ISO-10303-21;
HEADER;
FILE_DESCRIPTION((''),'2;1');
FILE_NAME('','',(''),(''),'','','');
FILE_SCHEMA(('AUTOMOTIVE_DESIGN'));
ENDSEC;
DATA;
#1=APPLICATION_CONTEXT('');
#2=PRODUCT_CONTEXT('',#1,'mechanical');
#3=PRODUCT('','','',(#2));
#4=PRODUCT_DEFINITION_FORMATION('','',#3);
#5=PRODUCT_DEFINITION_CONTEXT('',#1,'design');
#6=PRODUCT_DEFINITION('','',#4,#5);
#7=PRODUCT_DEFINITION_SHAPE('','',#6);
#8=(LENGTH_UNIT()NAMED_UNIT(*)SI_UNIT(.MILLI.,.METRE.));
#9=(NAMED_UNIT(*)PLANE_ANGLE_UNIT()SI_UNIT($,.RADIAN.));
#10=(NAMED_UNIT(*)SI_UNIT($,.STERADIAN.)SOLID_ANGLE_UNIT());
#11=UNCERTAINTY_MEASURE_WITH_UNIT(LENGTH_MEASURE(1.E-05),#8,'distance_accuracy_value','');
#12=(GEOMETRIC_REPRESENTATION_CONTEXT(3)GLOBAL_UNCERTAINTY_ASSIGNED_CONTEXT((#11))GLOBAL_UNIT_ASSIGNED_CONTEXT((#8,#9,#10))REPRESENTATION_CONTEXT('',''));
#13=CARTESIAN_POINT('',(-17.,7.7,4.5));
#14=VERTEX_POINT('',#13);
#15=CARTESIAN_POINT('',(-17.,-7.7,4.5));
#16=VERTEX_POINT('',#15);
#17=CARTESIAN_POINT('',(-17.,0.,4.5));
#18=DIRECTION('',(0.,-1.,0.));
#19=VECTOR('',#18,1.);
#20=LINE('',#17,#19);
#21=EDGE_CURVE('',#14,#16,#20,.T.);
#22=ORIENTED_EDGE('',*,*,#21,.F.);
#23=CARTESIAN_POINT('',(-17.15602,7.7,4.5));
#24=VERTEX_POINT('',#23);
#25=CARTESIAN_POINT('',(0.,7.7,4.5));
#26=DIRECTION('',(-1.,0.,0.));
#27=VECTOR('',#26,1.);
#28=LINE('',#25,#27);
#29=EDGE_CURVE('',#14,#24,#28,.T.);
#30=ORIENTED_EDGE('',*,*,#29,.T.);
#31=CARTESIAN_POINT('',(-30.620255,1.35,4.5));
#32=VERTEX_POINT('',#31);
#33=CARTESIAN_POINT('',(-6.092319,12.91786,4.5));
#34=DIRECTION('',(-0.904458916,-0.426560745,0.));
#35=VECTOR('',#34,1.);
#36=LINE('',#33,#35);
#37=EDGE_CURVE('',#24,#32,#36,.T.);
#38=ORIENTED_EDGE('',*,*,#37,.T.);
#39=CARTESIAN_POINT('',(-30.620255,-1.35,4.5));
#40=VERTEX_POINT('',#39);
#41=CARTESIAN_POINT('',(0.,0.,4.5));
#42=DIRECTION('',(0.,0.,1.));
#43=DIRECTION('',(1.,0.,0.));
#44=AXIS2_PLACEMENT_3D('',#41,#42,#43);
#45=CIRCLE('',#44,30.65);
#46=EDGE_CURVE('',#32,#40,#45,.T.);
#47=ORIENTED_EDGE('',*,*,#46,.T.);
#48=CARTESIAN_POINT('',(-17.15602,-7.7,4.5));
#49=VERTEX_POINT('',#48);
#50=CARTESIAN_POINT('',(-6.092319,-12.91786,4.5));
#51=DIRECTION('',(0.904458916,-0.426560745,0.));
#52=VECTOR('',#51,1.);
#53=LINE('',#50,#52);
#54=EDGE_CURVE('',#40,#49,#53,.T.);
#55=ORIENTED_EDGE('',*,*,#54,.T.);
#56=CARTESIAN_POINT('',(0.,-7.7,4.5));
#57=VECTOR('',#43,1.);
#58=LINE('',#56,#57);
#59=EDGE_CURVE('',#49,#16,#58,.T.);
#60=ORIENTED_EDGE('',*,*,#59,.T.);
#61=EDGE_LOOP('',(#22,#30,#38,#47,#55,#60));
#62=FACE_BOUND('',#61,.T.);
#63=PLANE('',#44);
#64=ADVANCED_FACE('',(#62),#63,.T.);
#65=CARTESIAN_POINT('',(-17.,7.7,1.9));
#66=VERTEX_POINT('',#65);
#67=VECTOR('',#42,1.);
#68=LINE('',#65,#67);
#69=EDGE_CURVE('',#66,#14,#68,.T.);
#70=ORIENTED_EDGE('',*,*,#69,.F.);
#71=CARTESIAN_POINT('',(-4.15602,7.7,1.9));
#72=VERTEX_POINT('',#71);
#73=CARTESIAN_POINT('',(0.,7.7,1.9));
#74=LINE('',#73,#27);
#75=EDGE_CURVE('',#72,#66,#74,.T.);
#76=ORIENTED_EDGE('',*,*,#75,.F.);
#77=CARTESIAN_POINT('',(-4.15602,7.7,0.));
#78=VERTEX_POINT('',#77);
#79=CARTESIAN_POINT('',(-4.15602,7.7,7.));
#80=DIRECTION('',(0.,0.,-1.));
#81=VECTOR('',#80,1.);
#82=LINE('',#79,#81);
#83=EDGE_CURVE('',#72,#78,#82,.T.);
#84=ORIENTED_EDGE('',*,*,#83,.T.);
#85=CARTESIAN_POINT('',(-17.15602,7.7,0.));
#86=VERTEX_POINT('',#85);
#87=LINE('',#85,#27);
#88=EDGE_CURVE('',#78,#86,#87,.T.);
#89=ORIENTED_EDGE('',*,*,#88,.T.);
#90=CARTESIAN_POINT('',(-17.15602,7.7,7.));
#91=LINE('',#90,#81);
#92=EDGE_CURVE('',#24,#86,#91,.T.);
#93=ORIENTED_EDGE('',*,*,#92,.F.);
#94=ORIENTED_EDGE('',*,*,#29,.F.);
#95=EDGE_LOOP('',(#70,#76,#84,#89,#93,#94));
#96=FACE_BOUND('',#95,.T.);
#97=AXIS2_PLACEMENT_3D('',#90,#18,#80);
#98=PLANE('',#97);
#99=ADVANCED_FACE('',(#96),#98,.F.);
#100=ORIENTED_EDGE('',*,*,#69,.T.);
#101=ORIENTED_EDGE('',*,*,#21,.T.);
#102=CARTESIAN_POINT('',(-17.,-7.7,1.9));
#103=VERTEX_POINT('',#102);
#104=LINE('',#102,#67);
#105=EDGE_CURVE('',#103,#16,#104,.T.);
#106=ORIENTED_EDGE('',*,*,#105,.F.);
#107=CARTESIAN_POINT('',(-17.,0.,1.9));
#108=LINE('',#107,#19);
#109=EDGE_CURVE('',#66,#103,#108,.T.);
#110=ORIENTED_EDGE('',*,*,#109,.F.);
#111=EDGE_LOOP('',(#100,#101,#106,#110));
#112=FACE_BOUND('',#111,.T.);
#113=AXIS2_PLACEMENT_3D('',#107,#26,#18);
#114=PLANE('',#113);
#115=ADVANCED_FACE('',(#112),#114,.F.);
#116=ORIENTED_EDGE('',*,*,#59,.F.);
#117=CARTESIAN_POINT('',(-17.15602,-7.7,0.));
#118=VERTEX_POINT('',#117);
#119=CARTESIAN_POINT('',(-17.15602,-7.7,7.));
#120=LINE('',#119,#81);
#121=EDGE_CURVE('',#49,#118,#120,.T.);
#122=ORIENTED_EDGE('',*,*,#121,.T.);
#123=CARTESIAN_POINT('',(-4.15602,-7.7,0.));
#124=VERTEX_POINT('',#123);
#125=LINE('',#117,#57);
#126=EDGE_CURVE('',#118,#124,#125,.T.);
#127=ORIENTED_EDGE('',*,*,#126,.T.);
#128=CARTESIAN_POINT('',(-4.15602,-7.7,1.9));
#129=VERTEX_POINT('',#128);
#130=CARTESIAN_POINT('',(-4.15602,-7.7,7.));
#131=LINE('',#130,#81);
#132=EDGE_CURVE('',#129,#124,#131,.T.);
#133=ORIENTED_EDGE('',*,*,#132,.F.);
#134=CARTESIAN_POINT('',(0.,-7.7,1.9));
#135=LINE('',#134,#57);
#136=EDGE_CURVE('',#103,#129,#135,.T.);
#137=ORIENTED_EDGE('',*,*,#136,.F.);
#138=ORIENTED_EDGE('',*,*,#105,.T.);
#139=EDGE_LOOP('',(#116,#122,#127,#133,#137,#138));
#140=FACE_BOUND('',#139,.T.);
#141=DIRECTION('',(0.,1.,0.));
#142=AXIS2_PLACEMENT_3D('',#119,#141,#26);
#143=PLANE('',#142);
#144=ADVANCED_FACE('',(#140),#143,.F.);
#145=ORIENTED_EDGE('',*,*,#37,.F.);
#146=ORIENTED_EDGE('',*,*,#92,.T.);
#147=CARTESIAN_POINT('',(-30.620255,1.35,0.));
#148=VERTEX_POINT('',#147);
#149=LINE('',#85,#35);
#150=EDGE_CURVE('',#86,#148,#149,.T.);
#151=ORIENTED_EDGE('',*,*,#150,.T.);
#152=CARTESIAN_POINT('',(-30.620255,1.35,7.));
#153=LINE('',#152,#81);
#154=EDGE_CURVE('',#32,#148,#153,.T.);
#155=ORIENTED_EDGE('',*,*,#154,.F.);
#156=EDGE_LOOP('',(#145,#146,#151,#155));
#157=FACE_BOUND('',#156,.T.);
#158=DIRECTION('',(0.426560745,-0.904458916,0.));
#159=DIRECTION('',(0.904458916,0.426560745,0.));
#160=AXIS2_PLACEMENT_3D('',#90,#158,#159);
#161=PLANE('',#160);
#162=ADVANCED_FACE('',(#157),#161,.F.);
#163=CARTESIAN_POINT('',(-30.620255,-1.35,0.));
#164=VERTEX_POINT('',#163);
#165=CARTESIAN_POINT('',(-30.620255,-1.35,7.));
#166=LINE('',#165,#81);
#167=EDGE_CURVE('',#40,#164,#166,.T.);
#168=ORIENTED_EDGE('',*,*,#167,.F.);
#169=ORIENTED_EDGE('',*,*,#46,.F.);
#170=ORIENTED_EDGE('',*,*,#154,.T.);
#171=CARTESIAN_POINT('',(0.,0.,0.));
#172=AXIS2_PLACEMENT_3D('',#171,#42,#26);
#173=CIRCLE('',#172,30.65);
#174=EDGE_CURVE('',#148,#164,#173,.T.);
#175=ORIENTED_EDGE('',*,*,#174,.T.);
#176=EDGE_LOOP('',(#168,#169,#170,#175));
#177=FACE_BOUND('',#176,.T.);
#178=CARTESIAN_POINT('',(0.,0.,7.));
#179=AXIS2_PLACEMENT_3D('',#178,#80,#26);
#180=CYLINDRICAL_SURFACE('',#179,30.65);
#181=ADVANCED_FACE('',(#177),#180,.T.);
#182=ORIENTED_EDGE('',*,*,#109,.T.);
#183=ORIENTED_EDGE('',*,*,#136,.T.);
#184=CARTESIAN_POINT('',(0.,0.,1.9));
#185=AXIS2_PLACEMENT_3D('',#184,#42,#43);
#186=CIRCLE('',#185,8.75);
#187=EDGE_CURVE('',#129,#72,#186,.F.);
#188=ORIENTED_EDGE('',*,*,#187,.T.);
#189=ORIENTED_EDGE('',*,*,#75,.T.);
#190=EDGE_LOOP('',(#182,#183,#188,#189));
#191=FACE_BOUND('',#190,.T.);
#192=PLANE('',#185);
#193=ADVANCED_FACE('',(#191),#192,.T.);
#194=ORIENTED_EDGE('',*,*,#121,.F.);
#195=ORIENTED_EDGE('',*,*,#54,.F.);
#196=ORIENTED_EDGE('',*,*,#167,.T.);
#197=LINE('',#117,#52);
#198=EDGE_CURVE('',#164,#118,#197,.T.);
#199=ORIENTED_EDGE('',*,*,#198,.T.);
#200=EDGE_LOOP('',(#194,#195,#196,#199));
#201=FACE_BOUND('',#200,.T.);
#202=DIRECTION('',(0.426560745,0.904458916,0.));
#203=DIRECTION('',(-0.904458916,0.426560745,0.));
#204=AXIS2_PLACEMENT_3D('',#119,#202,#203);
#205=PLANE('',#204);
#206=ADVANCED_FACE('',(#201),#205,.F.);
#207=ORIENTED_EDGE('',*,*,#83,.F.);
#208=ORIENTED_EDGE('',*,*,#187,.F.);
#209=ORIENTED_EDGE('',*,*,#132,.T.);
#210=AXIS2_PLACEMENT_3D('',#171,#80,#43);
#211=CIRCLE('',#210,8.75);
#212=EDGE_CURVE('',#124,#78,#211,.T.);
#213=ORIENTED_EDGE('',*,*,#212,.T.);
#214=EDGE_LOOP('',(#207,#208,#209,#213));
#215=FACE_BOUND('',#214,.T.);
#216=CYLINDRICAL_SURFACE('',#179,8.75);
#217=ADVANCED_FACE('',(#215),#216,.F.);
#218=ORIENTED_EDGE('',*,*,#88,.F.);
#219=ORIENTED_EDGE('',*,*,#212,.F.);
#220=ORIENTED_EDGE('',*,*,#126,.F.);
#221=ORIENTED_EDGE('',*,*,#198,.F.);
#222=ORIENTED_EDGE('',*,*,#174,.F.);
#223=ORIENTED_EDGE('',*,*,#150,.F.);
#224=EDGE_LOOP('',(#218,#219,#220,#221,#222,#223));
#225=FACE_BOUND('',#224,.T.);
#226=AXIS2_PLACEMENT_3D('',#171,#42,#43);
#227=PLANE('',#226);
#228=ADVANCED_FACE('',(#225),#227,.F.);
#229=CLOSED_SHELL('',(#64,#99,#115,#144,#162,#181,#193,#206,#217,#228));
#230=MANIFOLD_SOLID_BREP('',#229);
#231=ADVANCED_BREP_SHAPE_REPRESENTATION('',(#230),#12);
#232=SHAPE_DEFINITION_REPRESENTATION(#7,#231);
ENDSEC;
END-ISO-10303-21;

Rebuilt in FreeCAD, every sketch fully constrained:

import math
import FreeCAD as App
import Part
import Sketcher
Q = App.Units.Quantity

doc = App.newDocument("Part")
params = doc.addObject("Spreadsheet::Sheet", "Params")
for row, (alias, value) in enumerate([
    ("sketch1_width", "13 mm"),
    ("sketch1_radius", "8.75 mm"),
    ("sketch1_radius2", "30.65 mm"),
    ("pad1_length", "7 mm"),
    ("sketch2_radius", "8.75 mm"),
    ("sketch2_height", "15.4 mm"),
    ("pocket1_length", "5.1 mm"),
    ("sketch3_radius", "30.65 mm"),
    ("sketch3_height", "15.4 mm"),
    ("pocket2_length", "2.5 mm"),
], start=1):
    params.set(f"A{row}", alias)
    params.set(f"B{row}", "=" + value)
    params.setAlias(f"B{row}", alias)

body = doc.addObject("PartDesign::Body", "Body")

sketch1 = doc.addObject("Sketcher::SketchObject", "Sketch")
body.addObject(sketch1)
sketch1.AttachmentSupport = (doc.XY_Plane, [""])
sketch1.MapMode = "FlatFace"
sketch1.addGeometry([
    Part.LineSegment(App.Vector(-30.620255, -1.35, 0), App.Vector(-17.15602, -7.7, 0)),
    Part.LineSegment(App.Vector(-17.15602, -7.7, 0), App.Vector(-4.15602, -7.7, 0)),
    Part.ArcOfCircle(Part.Circle(App.Vector(0, 0, 0), App.Vector(0, 0, 1), 8.75), math.radians(118.357637), math.radians(241.642363)),
    Part.LineSegment(App.Vector(-4.15602, 7.7, 0), App.Vector(-17.15602, 7.7, 0)),
    Part.LineSegment(App.Vector(-17.15602, 7.7, 0), App.Vector(-30.620255, 1.35, 0)),
    Part.ArcOfCircle(Part.Circle(App.Vector(0, 0, 0), App.Vector(0, 0, 1), 30.65), math.radians(177.475552), math.radians(182.524448)),
], False)
sketch1.addConstraint([
    Sketcher.Constraint("Coincident", 0, 2, 1, 1),
    Sketcher.Constraint("Coincident", 1, 2, 2, 2),
    Sketcher.Constraint("Coincident", 2, 1, 3, 1),
    Sketcher.Constraint("Coincident", 3, 2, 4, 1),
    Sketcher.Constraint("Coincident", 4, 2, 5, 1),
    Sketcher.Constraint("Coincident", 5, 2, 0, 1),
    Sketcher.Constraint("Horizontal", 1),
    Sketcher.Constraint("Horizontal", 3),
    Sketcher.Constraint("Coincident", 2, 3, -1, 1),
    Sketcher.Constraint("Coincident", 5, 3, -1, 1),
    Sketcher.Constraint("Symmetric", 0, 2, 3, 2, -1),
    Sketcher.Constraint("Vertical", 4, 2, 5, 2),
    Sketcher.Constraint("DistanceX", 1, 1, 1, 2, Q("13 mm")),
    Sketcher.Constraint("Radius", 2, Q("8.75 mm")),
    Sketcher.Constraint("Radius", 5, Q("30.65 mm")),
    Sketcher.Constraint("DistanceY", 0, 2, -1, 1, Q("7.7 mm")),
    Sketcher.Constraint("DistanceY", 5, 2, 4, 2, Q("2.7 mm")),
])
sketch1.setExpression("Constraints[12]", "Params.sketch1_width")
sketch1.setExpression("Constraints[13]", "Params.sketch1_radius")
sketch1.setExpression("Constraints[14]", "Params.sketch1_radius2")
pad1 = doc.addObject("PartDesign::Pad", "Pad")
body.addObject(pad1)
pad1.Profile = sketch1
pad1.setExpression("Length", "Params.pad1_length")

sketch2 = doc.addObject("Sketcher::SketchObject", "Sketch001")
body.addObject(sketch2)
sketch2.AttachmentSupport = (doc.XY_Plane, [""])
sketch2.MapMode = "FlatFace"
sketch2.AttachmentOffset = App.Placement(App.Vector(0, 0, 1.9), App.Rotation())
sketch2.addGeometry([
    Part.LineSegment(App.Vector(-4.15602, 7.7, 0), App.Vector(-17, 7.7, 0)),
    Part.LineSegment(App.Vector(-17, 7.7, 0), App.Vector(-17, -7.7, 0)),
    Part.LineSegment(App.Vector(-17, -7.7, 0), App.Vector(-4.15602, -7.7, 0)),
    Part.ArcOfCircle(Part.Circle(App.Vector(0, 0, 0), App.Vector(0, 0, 1), 8.75), math.radians(118.357637), math.radians(241.642363)),
], False)
sketch2.addConstraint([
    Sketcher.Constraint("Coincident", 0, 2, 1, 1),
    Sketcher.Constraint("Coincident", 1, 2, 2, 1),
    Sketcher.Constraint("Coincident", 2, 2, 3, 2),
    Sketcher.Constraint("Coincident", 3, 1, 0, 1),
    Sketcher.Constraint("Horizontal", 0),
    Sketcher.Constraint("Vertical", 1),
    Sketcher.Constraint("Horizontal", 2),
    Sketcher.Constraint("Coincident", 3, 3, -1, 1),
    Sketcher.Constraint("Vertical", 2, 2, 3, 1),
    Sketcher.Constraint("Radius", 3, Q("8.75 mm")),
    Sketcher.Constraint("DistanceY", 1, 2, 1, 1, Q("15.4 mm")),
    Sketcher.Constraint("DistanceX", 0, 2, -1, 1, Q("17 mm")),
])
sketch2.setExpression("Constraints[9]", "Params.sketch2_radius")
sketch2.setExpression("Constraints[10]", "Params.sketch2_height")
pocket1 = doc.addObject("PartDesign::Pocket", "Pocket")
body.addObject(pocket1)
pocket1.Profile = sketch2
pocket1.setExpression("Length", "Params.pocket1_length")
pocket1.Reversed = True

sketch3 = doc.addObject("Sketcher::SketchObject", "Sketch002")
body.addObject(sketch3)
sketch3.AttachmentSupport = (doc.XY_Plane, [""])
sketch3.MapMode = "FlatFace"
sketch3.AttachmentOffset = App.Placement(App.Vector(0, 0, 4.5), App.Rotation())
sketch3.addGeometry([
    Part.LineSegment(App.Vector(-17, -7.7, 0), App.Vector(-17, 7.7, 0)),
    Part.LineSegment(App.Vector(-17, 7.7, 0), App.Vector(-17.15602, 7.7, 0)),
    Part.LineSegment(App.Vector(-17.15602, 7.7, 0), App.Vector(-30.620255, 1.35, 0)),
    Part.ArcOfCircle(Part.Circle(App.Vector(0, 0, 0), App.Vector(0, 0, 1), 30.65), math.radians(177.475552), math.radians(182.524448)),
    Part.LineSegment(App.Vector(-30.620255, -1.35, 0), App.Vector(-17.15602, -7.7, 0)),
    Part.LineSegment(App.Vector(-17.15602, -7.7, 0), App.Vector(-17, -7.7, 0)),
], False)
sketch3.addConstraint([
    Sketcher.Constraint("Coincident", 0, 2, 1, 1),
    Sketcher.Constraint("Coincident", 1, 2, 2, 1),
    Sketcher.Constraint("Coincident", 2, 2, 3, 1),
    Sketcher.Constraint("Coincident", 3, 2, 4, 1),
    Sketcher.Constraint("Coincident", 4, 2, 5, 1),
    Sketcher.Constraint("Coincident", 5, 2, 0, 1),
    Sketcher.Constraint("Vertical", 0),
    Sketcher.Constraint("Horizontal", 1),
    Sketcher.Constraint("Horizontal", 5),
    Sketcher.Constraint("Coincident", 3, 3, -1, 1),
    Sketcher.Constraint("Symmetric", 1, 2, 4, 2, -1),
    Sketcher.Constraint("Vertical", 2, 2, 3, 2),
    Sketcher.Constraint("Radius", 3, Q("30.65 mm")),
    Sketcher.Constraint("DistanceY", 0, 1, 0, 2, Q("15.4 mm")),
    Sketcher.Constraint("DistanceX", 0, 2, -1, 1, Q("17 mm")),
    Sketcher.Constraint("DistanceY", 3, 2, 2, 2, Q("2.7 mm")),
    Sketcher.Constraint("DistanceX", 1, 2, 1, 1, Q("0.15602 mm")),
])
sketch3.setExpression("Constraints[12]", "Params.sketch3_radius")
sketch3.setExpression("Constraints[13]", "Params.sketch3_height")
pocket2 = doc.addObject("PartDesign::Pocket", "Pocket001")
body.addObject(pocket2)
pocket2.Profile = sketch3
pocket2.setExpression("Length", "Params.pocket2_length")
pocket2.Reversed = True

doc.recompute()
